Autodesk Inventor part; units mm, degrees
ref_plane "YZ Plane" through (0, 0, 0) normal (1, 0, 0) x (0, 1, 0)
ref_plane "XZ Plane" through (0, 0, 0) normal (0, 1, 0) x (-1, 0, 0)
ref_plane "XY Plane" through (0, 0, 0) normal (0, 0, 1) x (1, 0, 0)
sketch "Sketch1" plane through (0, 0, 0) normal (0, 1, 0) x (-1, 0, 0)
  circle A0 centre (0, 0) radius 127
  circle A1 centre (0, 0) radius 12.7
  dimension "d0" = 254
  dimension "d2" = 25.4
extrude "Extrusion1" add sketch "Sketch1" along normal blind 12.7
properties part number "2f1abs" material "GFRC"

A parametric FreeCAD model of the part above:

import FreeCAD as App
import Part
import Sketcher
Q = App.Units.Quantity

doc = App.newDocument("Part")
body = doc.addObject("PartDesign::Body", "Body")

sketch1 = body.newObject("Sketcher::SketchObject", "Sketch")
sketch1.AttachmentSupport = (doc.getObject("XZ_Plane"), [""])
sketch1.MapMode = "FlatFace"
sketch1.addGeometry(Part.Circle(App.Vector(0, 0, 0), App.Vector(0, 0, 1), 127), False)
sketch1.addGeometry(Part.Circle(App.Vector(0, 0, 0), App.Vector(0, 0, 1), 13), False)
sketch1.addConstraint(Sketcher.Constraint("Coincident", 0, 3, -1, 1))
sketch1.addConstraint(Sketcher.Constraint("Coincident", 1, 3, -1, 1))
sketch1.addConstraint(Sketcher.Constraint("Diameter", 0, Q("10 in")))
sketch1.addConstraint(Sketcher.Constraint("Diameter", 1, Q("1 in")))
pad1 = body.newObject("PartDesign::Pad", "Pad")
pad1.Profile = sketch1
pad1.Length = Q("0.5 in")
pad1.Reversed = True

doc.recompute()
